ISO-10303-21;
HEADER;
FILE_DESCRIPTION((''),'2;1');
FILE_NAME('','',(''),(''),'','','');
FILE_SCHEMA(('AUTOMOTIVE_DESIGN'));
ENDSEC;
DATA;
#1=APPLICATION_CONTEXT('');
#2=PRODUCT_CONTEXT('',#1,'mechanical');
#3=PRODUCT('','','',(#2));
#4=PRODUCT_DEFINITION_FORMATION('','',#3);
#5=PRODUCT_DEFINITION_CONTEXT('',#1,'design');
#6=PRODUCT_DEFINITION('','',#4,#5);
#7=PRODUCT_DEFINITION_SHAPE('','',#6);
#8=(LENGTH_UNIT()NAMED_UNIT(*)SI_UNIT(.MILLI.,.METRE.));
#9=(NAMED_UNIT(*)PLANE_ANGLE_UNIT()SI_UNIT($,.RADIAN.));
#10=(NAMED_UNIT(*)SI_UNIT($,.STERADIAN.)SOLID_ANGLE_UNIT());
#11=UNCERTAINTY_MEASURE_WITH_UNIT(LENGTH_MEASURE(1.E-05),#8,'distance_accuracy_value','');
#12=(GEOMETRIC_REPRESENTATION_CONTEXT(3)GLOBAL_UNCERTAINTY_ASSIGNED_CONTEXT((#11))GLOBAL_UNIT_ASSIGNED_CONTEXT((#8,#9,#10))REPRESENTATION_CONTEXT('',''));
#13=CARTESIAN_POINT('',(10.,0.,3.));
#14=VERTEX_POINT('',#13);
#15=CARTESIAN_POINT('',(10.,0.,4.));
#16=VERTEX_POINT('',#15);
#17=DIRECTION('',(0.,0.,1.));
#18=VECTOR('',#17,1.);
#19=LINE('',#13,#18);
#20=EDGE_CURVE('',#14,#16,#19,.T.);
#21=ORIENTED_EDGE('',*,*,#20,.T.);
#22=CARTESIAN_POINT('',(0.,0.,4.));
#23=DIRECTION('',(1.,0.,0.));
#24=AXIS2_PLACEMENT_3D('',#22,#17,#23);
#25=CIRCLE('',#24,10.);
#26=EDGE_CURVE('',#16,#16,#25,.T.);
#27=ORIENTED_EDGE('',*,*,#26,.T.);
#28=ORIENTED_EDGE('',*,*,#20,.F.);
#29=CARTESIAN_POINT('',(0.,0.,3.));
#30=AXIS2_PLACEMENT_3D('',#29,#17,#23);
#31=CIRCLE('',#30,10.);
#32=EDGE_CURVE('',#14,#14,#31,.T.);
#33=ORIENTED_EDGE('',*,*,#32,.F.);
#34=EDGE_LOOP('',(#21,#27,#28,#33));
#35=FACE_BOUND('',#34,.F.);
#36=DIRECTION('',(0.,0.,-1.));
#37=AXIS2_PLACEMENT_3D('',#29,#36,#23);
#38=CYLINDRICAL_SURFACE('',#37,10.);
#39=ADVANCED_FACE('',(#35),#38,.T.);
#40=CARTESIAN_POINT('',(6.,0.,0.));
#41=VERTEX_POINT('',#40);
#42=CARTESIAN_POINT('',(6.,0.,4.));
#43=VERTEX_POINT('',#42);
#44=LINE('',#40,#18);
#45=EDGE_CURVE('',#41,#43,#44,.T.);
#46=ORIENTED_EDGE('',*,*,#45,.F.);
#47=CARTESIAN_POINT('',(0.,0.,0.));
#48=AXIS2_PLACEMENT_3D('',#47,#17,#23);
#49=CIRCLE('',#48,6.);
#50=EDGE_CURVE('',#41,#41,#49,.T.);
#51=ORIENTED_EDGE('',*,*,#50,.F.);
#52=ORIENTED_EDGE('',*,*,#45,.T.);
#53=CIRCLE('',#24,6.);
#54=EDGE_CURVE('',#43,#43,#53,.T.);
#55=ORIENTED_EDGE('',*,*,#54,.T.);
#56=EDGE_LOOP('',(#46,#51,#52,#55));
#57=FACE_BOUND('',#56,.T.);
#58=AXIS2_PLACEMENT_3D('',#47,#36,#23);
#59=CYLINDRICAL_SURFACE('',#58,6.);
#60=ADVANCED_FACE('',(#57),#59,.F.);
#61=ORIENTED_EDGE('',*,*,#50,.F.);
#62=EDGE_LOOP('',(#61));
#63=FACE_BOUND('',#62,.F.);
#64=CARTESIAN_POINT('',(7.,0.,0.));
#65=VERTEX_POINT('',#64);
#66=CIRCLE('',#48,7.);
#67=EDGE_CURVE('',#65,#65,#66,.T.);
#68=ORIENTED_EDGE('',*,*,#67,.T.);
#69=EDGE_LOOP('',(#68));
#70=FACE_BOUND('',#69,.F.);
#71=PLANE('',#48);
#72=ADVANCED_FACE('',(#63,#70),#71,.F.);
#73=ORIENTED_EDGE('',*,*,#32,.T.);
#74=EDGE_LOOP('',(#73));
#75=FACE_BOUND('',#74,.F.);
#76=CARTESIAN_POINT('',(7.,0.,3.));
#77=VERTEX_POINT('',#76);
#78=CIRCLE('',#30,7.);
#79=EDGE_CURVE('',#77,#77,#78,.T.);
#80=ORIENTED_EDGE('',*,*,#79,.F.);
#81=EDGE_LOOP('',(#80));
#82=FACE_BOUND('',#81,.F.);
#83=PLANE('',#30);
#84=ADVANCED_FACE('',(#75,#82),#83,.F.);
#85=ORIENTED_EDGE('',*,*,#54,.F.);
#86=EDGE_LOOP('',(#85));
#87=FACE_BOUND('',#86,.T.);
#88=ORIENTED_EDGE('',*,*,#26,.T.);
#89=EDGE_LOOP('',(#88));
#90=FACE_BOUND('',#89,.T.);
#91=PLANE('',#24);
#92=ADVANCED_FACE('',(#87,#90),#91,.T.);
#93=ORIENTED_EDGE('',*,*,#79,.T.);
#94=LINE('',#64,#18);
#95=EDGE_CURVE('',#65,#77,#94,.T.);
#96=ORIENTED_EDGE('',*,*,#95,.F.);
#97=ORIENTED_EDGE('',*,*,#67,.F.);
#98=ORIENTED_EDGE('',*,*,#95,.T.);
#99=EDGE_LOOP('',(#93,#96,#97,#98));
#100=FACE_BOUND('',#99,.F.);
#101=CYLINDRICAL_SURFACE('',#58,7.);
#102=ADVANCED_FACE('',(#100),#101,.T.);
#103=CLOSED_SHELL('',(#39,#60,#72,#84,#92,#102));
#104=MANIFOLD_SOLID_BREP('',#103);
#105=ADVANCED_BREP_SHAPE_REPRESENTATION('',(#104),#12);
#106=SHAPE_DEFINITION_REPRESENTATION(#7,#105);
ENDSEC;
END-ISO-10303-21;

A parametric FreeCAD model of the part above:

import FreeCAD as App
import Part
import Sketcher
from FreeCAD import Vector

doc = App.newDocument("Part")
params = doc.addObject("Spreadsheet::Sheet", "Params")
for row, (alias, value) in enumerate([
    ("sketch1_diameter", "14 mm"),
    ("sketch1_diameter2", "12 mm"),
    ("pad1_length", "3 mm"),
    ("sketch2_diameter", "20 mm"),
    ("sketch2_diameter2", "12 mm"),
    ("pad2_length", "1 mm"),
], start=1):
    params.set(f"A{row}", alias)
    params.set(f"B{row}", "=" + value)
    params.setAlias(f"B{row}", alias)

body = doc.addObject("PartDesign::Body", "Body")

# Sketch on XY plane
sketch1 = body.newObject("Sketcher::SketchObject", "Sketch")
sketch1.AttachmentSupport = (doc.getObject("XY_Plane"), [""])
sketch1.MapMode = "FlatFace"
sketch1.addGeometry([
    Part.Circle(Vector(0, 0, 0), Vector(0, 0, 1), 7),
    Part.Circle(Vector(0, 0, 0), Vector(0, 0, 1), 6),
], False)
sketch1.addConstraint([
    Sketcher.Constraint("Coincident", 0, 3, -1, 1),
    Sketcher.Constraint("Coincident", 1, 3, -1, 1),
    Sketcher.Constraint("Diameter", 0, 14.0),
    Sketcher.Constraint("Diameter", 1, 12.0),
])
sketch1.setExpression("Constraints[2]", "Params.sketch1_diameter")
sketch1.setExpression("Constraints[3]", "Params.sketch1_diameter2")
pad1 = body.newObject("PartDesign::Pad", "Pad")
pad1.Profile = sketch1
pad1.setExpression("Length", "Params.pad1_length")

# Sketch on XY plane
sketch2 = body.newObject("Sketcher::SketchObject", "Sketch001")
sketch2.AttachmentSupport = (doc.getObject("XY_Plane"), [""])
sketch2.MapMode = "FlatFace"
sketch2.AttachmentOffset = App.Placement(Vector(0, 0, 3), App.Rotation())
sketch2.addGeometry([
    Part.Circle(Vector(0, 0, 0), Vector(0, 0, 1), 10),
    Part.Circle(Vector(0, 0, 0), Vector(0, 0, 1), 6),
], False)
sketch2.addConstraint([
    Sketcher.Constraint("Coincident", 0, 3, -1, 1),
    Sketcher.Constraint("Coincident", 1, 3, -1, 1),
    Sketcher.Constraint("Diameter", 0, 20.0),
    Sketcher.Constraint("Diameter", 1, 12.0),
])
sketch2.setExpression("Constraints[2]", "Params.sketch2_diameter")
sketch2.setExpression("Constraints[3]", "Params.sketch2_diameter2")
pad2 = body.newObject("PartDesign::Pad", "Pad001")
pad2.Profile = sketch2
pad2.setExpression("Length", "Params.pad2_length")

doc.recompute()
